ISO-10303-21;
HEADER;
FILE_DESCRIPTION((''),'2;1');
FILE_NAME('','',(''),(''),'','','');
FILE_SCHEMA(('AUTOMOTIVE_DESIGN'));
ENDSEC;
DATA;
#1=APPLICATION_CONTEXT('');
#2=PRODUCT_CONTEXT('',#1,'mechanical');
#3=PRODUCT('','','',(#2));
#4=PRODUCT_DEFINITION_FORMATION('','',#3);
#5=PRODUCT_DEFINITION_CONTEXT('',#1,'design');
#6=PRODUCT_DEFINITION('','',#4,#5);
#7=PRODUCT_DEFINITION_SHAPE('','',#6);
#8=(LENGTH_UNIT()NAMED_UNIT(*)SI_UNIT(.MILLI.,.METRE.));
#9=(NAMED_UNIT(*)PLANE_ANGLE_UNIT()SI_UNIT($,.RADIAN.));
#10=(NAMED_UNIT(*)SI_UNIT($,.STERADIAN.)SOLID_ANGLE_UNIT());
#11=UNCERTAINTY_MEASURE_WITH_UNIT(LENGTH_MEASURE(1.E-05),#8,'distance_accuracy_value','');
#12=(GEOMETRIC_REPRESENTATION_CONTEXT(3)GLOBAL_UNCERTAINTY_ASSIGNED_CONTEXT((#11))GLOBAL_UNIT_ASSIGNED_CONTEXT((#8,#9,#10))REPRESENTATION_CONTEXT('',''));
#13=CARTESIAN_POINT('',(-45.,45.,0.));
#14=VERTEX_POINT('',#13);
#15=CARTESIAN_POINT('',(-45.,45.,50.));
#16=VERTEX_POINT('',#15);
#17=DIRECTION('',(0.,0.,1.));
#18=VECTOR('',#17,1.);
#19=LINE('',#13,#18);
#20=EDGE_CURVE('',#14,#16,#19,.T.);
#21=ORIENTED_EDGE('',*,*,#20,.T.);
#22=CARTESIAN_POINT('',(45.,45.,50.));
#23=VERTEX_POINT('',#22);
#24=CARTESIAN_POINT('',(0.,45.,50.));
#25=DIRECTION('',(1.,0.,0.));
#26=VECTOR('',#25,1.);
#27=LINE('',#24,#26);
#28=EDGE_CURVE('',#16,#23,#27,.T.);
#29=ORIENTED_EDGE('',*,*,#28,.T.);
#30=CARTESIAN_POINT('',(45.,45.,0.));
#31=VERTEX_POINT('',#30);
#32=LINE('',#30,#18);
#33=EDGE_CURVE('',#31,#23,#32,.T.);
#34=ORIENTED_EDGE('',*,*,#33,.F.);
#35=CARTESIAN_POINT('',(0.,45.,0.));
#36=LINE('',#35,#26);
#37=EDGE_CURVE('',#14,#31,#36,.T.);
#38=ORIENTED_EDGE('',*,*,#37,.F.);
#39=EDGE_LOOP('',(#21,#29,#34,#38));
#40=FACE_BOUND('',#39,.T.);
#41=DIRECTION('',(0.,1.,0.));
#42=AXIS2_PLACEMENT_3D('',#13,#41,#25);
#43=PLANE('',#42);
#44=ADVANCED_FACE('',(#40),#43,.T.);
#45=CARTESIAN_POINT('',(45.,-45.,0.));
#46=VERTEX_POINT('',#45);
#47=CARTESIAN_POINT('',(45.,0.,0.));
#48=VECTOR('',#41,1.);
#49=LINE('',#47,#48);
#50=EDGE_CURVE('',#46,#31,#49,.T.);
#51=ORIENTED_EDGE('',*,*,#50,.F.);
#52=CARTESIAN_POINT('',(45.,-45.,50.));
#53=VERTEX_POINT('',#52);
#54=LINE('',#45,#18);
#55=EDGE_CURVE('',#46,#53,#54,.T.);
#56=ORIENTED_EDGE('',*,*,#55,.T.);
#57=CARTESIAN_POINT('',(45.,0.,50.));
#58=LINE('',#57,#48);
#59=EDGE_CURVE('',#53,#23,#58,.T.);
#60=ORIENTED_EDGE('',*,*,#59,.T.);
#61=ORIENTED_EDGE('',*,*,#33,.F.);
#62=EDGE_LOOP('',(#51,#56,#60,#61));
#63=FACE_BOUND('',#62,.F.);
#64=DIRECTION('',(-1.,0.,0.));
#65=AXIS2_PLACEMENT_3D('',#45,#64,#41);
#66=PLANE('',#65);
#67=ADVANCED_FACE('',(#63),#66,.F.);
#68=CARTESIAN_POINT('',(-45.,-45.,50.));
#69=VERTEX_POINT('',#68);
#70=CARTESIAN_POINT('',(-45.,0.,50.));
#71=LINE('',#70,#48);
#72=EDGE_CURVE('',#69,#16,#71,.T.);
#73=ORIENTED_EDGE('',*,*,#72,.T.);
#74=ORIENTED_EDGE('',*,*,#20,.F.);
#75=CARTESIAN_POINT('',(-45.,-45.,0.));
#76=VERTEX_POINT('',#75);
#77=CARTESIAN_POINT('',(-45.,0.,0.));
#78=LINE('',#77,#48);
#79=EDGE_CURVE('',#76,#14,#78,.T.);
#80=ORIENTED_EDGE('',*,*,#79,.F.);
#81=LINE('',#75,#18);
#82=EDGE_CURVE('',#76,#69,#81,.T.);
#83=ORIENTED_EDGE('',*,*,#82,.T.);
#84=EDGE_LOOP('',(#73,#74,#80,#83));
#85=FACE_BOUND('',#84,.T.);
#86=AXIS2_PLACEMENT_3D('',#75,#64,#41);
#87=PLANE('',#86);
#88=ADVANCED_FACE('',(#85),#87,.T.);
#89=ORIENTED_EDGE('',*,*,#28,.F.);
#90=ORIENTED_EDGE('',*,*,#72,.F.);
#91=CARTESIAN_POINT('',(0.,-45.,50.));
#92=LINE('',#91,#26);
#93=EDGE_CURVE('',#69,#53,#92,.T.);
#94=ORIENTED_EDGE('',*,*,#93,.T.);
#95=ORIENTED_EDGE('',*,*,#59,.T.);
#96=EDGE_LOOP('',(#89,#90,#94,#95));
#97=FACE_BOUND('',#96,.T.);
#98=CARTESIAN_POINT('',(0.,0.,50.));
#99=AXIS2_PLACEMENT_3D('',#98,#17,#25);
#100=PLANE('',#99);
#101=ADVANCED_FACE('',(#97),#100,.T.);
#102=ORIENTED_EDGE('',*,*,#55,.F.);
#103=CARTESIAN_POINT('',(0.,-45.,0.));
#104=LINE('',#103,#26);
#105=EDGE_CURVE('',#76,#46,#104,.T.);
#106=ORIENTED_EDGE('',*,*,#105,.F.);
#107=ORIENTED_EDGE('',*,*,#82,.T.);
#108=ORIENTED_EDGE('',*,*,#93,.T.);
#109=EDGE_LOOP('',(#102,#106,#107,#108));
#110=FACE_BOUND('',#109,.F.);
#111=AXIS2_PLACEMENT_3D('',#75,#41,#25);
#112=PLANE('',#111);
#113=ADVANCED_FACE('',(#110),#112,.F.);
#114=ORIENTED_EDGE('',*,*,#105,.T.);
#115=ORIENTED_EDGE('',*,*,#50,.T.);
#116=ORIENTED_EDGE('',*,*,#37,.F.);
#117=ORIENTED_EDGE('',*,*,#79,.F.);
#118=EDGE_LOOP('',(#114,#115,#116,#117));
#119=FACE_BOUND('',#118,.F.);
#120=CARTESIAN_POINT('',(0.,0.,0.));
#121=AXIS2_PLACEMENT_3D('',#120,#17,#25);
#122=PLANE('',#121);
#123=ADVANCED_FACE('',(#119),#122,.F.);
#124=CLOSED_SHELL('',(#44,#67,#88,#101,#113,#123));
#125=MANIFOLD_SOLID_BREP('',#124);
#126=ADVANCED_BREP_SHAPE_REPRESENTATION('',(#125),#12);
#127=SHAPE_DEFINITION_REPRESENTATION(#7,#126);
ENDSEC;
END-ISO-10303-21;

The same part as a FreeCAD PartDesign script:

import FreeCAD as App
import Part
import Sketcher
Q = App.Units.Quantity

doc = App.newDocument("Part")
params = doc.addObject("Spreadsheet::Sheet", "Params")
for row, (alias, value) in enumerate([
    ("sketch1_width", "90 mm"),
    ("pad1_length", "50 mm"),
], start=1):
    params.set(f"A{row}", alias)
    params.set(f"B{row}", "=" + value)
    params.setAlias(f"B{row}", alias)

body = doc.addObject("PartDesign::Body", "Body")

# Sketch on XY plane
sketch1 = doc.addObject("Sketcher::SketchObject", "Sketch")
body.addObject(sketch1)
sketch1.AttachmentSupport = (doc.XY_Plane, [""])
sketch1.MapMode = "FlatFace"
sketch1.addGeometry([
    Part.LineSegment(App.Vector(-45, 45, 0), App.Vector(-45, -45, 0)),
    Part.LineSegment(App.Vector(-45, -45, 0), App.Vector(45, -45, 0)),
    Part.LineSegment(App.Vector(45, -45, 0), App.Vector(45, 45, 0)),
    Part.LineSegment(App.Vector(45, 45, 0), App.Vector(-45, 45, 0)),
], False)
sketch1.addConstraint([
    Sketcher.Constraint("Coincident", 0, 2, 1, 1),
    Sketcher.Constraint("Coincident", 1, 2, 2, 1),
    Sketcher.Constraint("Coincident", 2, 2, 3, 1),
    Sketcher.Constraint("Coincident", 3, 2, 0, 1),
    Sketcher.Constraint("Vertical", 0),
    Sketcher.Constraint("Horizontal", 1),
    Sketcher.Constraint("Vertical", 2),
    Sketcher.Constraint("Horizontal", 3),
    Sketcher.Constraint("Symmetric", 0, 2, 2, 2, -1, 1),
    Sketcher.Constraint("Equal", 3, 0),
    Sketcher.Constraint("DistanceX", 1, 1, 1, 2, Q("90 mm")),
])
sketch1.setExpression("Constraints[10]", "Params.sketch1_width")
pad1 = doc.addObject("PartDesign::Pad", "Pad")
body.addObject(pad1)
pad1.Profile = sketch1
pad1.setExpression("Length", "Params.pad1_length")

doc.recompute()
